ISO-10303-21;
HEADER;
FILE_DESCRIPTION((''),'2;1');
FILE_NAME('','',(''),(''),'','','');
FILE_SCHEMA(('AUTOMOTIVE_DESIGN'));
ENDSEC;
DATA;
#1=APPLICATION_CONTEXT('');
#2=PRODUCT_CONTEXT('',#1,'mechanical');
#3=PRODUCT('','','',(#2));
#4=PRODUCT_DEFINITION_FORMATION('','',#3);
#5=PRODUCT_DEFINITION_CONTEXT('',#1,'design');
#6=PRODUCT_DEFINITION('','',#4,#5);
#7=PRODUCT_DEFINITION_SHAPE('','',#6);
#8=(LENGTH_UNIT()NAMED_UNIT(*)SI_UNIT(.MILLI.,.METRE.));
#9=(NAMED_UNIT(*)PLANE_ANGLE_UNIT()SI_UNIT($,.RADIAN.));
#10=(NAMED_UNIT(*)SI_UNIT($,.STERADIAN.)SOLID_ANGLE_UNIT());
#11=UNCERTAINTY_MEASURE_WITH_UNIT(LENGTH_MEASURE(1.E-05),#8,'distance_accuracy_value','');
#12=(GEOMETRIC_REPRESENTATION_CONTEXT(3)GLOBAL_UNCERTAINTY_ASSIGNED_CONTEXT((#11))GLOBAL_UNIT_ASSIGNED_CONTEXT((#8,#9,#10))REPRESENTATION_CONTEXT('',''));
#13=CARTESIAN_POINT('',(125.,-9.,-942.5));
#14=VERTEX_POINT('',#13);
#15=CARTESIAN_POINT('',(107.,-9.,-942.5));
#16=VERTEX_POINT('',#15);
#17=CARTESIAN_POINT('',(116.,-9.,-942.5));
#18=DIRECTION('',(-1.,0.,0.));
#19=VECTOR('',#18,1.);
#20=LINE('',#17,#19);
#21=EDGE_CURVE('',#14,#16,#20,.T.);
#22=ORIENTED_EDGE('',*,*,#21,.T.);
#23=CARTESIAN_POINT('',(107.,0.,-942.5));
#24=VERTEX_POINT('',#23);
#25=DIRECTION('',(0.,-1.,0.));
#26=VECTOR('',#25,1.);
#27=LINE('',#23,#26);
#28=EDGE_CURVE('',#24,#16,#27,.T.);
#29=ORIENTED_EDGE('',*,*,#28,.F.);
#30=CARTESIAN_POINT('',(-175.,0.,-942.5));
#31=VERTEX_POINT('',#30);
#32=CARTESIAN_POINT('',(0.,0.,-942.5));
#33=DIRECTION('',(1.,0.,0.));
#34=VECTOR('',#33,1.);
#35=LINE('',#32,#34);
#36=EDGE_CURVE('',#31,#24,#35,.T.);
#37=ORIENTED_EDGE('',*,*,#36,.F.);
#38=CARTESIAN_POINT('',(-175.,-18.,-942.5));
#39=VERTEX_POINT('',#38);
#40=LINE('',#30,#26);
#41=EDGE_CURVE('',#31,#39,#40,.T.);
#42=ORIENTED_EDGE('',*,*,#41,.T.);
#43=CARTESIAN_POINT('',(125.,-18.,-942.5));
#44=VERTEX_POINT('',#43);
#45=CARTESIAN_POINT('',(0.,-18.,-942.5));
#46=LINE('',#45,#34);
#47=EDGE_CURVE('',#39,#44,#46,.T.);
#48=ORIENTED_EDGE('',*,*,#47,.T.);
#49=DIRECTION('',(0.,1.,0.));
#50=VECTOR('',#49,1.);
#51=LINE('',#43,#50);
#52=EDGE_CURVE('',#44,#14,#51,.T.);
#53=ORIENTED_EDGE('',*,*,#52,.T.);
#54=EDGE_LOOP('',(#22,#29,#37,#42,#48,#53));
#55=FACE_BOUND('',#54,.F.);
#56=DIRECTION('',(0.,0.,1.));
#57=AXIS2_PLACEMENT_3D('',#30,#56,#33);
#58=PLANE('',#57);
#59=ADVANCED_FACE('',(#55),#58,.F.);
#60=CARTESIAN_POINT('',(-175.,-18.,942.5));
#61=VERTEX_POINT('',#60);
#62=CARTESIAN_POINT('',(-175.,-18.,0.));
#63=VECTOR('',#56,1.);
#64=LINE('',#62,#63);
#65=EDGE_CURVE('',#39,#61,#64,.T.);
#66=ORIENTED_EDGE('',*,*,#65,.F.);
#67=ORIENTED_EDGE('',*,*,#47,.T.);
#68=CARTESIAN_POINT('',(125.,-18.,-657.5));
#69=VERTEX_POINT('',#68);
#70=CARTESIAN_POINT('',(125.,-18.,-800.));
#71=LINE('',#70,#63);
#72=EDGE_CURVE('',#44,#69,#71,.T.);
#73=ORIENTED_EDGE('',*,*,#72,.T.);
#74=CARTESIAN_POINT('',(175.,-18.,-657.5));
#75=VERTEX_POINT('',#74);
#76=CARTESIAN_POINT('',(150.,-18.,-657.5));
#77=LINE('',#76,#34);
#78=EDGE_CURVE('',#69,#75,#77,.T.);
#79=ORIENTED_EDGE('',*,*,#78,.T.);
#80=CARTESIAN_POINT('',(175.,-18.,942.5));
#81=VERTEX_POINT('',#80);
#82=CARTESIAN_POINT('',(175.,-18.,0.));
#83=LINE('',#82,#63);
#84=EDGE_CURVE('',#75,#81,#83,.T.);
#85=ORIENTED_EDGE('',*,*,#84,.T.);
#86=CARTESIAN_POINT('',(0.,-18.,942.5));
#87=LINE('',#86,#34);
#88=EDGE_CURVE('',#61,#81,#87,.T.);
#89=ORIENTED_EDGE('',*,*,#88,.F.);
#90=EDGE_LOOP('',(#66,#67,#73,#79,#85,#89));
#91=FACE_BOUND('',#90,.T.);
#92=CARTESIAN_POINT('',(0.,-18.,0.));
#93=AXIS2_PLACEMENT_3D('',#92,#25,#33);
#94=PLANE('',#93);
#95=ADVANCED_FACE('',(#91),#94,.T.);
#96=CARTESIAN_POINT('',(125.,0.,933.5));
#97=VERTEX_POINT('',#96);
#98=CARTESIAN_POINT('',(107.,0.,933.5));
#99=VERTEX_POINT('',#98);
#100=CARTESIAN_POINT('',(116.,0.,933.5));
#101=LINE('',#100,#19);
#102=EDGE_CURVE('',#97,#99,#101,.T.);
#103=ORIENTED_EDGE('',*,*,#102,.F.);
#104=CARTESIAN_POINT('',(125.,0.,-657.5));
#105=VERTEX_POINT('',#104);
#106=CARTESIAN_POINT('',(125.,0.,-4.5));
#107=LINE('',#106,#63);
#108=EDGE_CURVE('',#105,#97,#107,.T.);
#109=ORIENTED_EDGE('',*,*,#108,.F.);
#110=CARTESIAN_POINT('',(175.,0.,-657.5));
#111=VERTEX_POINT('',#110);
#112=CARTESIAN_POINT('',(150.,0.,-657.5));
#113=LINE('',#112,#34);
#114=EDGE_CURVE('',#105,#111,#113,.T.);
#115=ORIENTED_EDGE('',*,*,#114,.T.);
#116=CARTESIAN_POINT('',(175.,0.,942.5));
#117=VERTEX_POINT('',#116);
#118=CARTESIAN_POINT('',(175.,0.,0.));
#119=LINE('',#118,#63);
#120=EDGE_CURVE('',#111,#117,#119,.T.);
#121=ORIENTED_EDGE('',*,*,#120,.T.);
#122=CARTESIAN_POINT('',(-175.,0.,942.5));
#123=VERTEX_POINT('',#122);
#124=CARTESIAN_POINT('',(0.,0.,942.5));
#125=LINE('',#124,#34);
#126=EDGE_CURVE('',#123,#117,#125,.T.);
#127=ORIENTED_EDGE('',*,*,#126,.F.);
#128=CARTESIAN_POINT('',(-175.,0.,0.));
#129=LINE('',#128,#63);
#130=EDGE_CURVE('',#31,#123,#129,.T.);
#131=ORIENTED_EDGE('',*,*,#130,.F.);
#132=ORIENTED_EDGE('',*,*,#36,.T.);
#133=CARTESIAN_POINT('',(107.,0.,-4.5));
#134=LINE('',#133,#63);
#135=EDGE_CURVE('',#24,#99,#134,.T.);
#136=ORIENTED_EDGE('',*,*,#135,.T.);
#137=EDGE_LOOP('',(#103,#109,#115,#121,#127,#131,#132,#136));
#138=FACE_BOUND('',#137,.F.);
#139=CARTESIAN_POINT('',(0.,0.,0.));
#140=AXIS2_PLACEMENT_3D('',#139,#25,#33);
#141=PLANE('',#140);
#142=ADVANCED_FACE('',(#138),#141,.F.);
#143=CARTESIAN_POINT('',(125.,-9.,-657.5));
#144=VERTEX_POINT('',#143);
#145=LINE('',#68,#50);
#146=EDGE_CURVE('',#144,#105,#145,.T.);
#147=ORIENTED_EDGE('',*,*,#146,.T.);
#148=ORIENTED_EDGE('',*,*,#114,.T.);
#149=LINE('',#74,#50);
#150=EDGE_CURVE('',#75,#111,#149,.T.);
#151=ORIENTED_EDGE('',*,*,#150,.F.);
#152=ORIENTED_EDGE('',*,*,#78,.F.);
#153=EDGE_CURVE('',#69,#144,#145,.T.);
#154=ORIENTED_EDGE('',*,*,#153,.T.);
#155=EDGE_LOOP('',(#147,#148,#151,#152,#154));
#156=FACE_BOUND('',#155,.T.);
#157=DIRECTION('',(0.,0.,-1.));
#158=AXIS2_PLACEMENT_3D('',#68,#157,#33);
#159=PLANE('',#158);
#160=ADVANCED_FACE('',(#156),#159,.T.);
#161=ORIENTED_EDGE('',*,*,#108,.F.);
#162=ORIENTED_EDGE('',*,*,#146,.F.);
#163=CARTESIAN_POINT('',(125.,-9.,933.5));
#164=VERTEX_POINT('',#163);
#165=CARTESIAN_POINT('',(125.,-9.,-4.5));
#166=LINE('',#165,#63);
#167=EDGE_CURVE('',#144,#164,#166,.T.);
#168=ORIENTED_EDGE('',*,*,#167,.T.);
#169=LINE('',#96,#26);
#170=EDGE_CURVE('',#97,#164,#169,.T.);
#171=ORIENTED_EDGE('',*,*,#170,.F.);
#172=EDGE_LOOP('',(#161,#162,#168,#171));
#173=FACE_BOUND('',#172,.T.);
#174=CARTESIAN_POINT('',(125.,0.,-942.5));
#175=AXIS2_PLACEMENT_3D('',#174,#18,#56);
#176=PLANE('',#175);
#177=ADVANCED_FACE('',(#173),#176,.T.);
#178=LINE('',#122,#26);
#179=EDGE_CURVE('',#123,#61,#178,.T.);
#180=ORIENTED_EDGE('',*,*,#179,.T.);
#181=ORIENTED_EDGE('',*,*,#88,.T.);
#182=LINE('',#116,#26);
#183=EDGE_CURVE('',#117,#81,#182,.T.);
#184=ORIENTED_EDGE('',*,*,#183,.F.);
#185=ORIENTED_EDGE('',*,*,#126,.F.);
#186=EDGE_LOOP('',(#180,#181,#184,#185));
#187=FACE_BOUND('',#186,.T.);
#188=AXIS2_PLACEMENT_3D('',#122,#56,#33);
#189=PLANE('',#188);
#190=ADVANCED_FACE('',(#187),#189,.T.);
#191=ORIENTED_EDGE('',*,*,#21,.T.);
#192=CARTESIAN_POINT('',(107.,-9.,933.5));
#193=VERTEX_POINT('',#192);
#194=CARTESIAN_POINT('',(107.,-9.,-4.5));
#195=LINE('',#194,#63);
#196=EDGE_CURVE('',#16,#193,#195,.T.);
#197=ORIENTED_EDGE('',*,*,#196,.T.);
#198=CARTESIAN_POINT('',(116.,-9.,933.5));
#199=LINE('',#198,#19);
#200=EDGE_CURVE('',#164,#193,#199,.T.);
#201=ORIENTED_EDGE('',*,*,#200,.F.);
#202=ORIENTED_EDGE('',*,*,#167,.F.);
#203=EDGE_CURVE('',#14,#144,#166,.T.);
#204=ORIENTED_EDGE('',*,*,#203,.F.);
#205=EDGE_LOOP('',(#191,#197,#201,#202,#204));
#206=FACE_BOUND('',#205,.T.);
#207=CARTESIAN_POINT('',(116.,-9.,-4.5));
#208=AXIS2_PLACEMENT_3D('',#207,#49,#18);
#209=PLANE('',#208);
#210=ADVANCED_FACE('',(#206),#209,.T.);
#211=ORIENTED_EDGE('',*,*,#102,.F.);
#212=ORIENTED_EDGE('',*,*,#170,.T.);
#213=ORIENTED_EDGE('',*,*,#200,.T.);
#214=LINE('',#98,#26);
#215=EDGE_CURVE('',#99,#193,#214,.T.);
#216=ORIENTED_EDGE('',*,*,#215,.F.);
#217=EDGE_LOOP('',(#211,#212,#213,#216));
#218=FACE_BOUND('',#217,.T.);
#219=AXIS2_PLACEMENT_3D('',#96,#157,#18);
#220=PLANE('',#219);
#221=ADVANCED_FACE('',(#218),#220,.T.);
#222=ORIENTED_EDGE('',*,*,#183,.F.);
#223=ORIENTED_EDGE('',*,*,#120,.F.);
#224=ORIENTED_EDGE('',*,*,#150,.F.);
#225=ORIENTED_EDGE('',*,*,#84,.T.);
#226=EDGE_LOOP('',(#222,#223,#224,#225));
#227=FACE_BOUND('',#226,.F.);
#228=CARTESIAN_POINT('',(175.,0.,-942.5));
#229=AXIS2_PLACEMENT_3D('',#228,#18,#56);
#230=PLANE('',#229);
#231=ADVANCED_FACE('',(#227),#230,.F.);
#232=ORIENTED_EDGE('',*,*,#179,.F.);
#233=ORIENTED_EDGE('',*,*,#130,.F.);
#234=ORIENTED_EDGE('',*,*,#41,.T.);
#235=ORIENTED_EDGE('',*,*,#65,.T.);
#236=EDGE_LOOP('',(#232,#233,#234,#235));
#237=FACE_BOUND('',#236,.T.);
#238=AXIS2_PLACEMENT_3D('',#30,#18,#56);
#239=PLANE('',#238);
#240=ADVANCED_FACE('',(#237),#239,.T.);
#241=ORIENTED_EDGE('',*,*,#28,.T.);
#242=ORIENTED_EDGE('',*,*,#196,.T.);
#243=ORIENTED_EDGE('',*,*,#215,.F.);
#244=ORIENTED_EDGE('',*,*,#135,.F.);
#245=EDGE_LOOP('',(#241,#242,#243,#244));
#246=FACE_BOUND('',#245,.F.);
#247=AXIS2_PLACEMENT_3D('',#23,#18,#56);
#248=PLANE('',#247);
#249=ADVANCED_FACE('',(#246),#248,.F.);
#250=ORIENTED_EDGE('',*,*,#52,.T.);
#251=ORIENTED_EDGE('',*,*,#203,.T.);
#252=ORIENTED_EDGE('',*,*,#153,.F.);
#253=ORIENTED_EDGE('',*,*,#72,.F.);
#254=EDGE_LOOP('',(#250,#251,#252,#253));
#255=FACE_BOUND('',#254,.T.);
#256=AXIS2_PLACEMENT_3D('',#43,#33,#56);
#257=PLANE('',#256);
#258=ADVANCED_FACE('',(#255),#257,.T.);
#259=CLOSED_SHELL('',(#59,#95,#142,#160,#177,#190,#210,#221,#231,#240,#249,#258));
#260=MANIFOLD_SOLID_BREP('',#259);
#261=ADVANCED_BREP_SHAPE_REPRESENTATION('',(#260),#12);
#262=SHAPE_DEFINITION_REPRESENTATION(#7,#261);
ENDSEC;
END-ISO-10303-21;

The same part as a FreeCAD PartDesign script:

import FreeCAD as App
import Part
import Sketcher
from FreeCAD import Vector
Q = App.Units.Quantity


def add_polygon(sketch, points):
    """Adds a closed chain of lines whose ends are joined by coincident constraints."""
    first, n = sketch.GeometryCount, len(points)
    for a, b in zip(points, points[1:] + points[:1]):
        sketch.addGeometry(Part.LineSegment(App.Vector(*a, 0), App.Vector(*b, 0)), False)
    for i in range(n):
        sketch.addConstraint(Sketcher.Constraint("Coincident", first + i, 2, first + (i + 1) % n, 1))

doc = App.newDocument("Part")
params = doc.addObject("Spreadsheet::Sheet", "Params")
for row, (alias, value) in enumerate([
    ("sketch1_width", "350 mm"),
    ("sketch1_height", "1885 mm"),
    ("pad1_length", "18 mm"),
    ("sketch2_width", "50 mm"),
    ("sketch2_height", "285 mm"),
    ("pocket1_length", "18 mm"),
    ("sketch3_width", "18 mm"),
    ("sketch3_height", "1876 mm"),
    ("pocket2_length", "9 mm"),
], start=1):
    params.set(f"A{row}", alias)
    params.set(f"B{row}", "=" + value)
    params.setAlias(f"B{row}", alias)

body = doc.addObject("PartDesign::Body", "Body")

sketch1 = body.newObject("Sketcher::SketchObject", "Sketch")
sketch1.AttachmentSupport = (doc.getObject("XZ_Plane"), [""])
sketch1.MapMode = "FlatFace"
add_polygon(sketch1, [(-175, 942.5), (-175, -942.5), (175, -942.5), (175, 942.5)])
sketch1.addConstraint([
    Sketcher.Constraint("Vertical", 0),
    Sketcher.Constraint("Horizontal", 1),
    Sketcher.Constraint("Vertical", 2),
    Sketcher.Constraint("Horizontal", 3),
    Sketcher.Constraint("Symmetric", 0, 2, 2, 2, -1, 1),
    Sketcher.Constraint("DistanceX", 1, 1, 1, 2, Q("350 mm")),
    Sketcher.Constraint("DistanceY", 0, 2, 0, 1, Q("1885 mm")),
])
sketch1.setExpression("Constraints[9]", "Params.sketch1_width")
sketch1.setExpression("Constraints[10]", "Params.sketch1_height")
pad1 = body.newObject("PartDesign::Pad", "Pad")
pad1.Profile = sketch1
pad1.setExpression("Length", "Params.pad1_length")

sketch2 = body.newObject("Sketcher::SketchObject", "Sketch001")
sketch2.AttachmentSupport = (doc.getObject("XZ_Plane"), [""])
sketch2.MapMode = "FlatFace"
sketch2.AttachmentOffset = App.Placement(Vector(0, 0, 18), App.Rotation())
add_polygon(sketch2, [(125, -657.5), (125, -942.5), (175, -942.5), (175, -657.5)])
sketch2.addConstraint([
    Sketcher.Constraint("Vertical", 0),
    Sketcher.Constraint("Horizontal", 1),
    Sketcher.Constraint("Vertical", 2),
    Sketcher.Constraint("Horizontal", 3),
    Sketcher.Constraint("DistanceX", 1, 1, 1, 2, Q("50 mm")),
    Sketcher.Constraint("DistanceY", 0, 2, 0, 1, Q("285 mm")),
    Sketcher.Constraint("DistanceX", -1, 1, 0, 2, Q("125 mm")),
    Sketcher.Constraint("DistanceY", 0, 2, -1, 1, Q("942.5 mm")),
])
sketch2.setExpression("Constraints[8]", "Params.sketch2_width")
sketch2.setExpression("Constraints[9]", "Params.sketch2_height")
pocket1 = body.newObject("PartDesign::Pocket", "Pocket")
pocket1.Profile = sketch2
pocket1.setExpression("Length", "Params.pocket1_length")

sketch3 = body.newObject("Sketcher::SketchObject", "Sketch002")
sketch3.AttachmentSupport = (doc.getObject("XZ_Plane"), [""])
sketch3.MapMode = "FlatFace"
add_polygon(sketch3, [(125, 933.5), (125, -942.5), (107, -942.5), (107, 933.5)])
sketch3.addConstraint([
    Sketcher.Constraint("Vertical", 0),
    Sketcher.Constraint("Horizontal", 1),
    Sketcher.Constraint("Vertical", 2),
    Sketcher.Constraint("Horizontal", 3),
    Sketcher.Constraint("DistanceX", 1, 2, 1, 1, Q("18 mm")),
    Sketcher.Constraint("DistanceY", 0, 2, 0, 1, Q("1876 mm")),
    Sketcher.Constraint("DistanceX", -1, 1, 0, 2, Q("125 mm")),
    Sketcher.Constraint("DistanceY", 0, 2, -1, 1, Q("942.5 mm")),
])
sketch3.setExpression("Constraints[8]", "Params.sketch3_width")
sketch3.setExpression("Constraints[9]", "Params.sketch3_height")
pocket2 = body.newObject("PartDesign::Pocket", "Pocket001")
pocket2.Profile = sketch3
pocket2.setExpression("Length", "Params.pocket2_length")
pocket2.Reversed = True

doc.recompute()
